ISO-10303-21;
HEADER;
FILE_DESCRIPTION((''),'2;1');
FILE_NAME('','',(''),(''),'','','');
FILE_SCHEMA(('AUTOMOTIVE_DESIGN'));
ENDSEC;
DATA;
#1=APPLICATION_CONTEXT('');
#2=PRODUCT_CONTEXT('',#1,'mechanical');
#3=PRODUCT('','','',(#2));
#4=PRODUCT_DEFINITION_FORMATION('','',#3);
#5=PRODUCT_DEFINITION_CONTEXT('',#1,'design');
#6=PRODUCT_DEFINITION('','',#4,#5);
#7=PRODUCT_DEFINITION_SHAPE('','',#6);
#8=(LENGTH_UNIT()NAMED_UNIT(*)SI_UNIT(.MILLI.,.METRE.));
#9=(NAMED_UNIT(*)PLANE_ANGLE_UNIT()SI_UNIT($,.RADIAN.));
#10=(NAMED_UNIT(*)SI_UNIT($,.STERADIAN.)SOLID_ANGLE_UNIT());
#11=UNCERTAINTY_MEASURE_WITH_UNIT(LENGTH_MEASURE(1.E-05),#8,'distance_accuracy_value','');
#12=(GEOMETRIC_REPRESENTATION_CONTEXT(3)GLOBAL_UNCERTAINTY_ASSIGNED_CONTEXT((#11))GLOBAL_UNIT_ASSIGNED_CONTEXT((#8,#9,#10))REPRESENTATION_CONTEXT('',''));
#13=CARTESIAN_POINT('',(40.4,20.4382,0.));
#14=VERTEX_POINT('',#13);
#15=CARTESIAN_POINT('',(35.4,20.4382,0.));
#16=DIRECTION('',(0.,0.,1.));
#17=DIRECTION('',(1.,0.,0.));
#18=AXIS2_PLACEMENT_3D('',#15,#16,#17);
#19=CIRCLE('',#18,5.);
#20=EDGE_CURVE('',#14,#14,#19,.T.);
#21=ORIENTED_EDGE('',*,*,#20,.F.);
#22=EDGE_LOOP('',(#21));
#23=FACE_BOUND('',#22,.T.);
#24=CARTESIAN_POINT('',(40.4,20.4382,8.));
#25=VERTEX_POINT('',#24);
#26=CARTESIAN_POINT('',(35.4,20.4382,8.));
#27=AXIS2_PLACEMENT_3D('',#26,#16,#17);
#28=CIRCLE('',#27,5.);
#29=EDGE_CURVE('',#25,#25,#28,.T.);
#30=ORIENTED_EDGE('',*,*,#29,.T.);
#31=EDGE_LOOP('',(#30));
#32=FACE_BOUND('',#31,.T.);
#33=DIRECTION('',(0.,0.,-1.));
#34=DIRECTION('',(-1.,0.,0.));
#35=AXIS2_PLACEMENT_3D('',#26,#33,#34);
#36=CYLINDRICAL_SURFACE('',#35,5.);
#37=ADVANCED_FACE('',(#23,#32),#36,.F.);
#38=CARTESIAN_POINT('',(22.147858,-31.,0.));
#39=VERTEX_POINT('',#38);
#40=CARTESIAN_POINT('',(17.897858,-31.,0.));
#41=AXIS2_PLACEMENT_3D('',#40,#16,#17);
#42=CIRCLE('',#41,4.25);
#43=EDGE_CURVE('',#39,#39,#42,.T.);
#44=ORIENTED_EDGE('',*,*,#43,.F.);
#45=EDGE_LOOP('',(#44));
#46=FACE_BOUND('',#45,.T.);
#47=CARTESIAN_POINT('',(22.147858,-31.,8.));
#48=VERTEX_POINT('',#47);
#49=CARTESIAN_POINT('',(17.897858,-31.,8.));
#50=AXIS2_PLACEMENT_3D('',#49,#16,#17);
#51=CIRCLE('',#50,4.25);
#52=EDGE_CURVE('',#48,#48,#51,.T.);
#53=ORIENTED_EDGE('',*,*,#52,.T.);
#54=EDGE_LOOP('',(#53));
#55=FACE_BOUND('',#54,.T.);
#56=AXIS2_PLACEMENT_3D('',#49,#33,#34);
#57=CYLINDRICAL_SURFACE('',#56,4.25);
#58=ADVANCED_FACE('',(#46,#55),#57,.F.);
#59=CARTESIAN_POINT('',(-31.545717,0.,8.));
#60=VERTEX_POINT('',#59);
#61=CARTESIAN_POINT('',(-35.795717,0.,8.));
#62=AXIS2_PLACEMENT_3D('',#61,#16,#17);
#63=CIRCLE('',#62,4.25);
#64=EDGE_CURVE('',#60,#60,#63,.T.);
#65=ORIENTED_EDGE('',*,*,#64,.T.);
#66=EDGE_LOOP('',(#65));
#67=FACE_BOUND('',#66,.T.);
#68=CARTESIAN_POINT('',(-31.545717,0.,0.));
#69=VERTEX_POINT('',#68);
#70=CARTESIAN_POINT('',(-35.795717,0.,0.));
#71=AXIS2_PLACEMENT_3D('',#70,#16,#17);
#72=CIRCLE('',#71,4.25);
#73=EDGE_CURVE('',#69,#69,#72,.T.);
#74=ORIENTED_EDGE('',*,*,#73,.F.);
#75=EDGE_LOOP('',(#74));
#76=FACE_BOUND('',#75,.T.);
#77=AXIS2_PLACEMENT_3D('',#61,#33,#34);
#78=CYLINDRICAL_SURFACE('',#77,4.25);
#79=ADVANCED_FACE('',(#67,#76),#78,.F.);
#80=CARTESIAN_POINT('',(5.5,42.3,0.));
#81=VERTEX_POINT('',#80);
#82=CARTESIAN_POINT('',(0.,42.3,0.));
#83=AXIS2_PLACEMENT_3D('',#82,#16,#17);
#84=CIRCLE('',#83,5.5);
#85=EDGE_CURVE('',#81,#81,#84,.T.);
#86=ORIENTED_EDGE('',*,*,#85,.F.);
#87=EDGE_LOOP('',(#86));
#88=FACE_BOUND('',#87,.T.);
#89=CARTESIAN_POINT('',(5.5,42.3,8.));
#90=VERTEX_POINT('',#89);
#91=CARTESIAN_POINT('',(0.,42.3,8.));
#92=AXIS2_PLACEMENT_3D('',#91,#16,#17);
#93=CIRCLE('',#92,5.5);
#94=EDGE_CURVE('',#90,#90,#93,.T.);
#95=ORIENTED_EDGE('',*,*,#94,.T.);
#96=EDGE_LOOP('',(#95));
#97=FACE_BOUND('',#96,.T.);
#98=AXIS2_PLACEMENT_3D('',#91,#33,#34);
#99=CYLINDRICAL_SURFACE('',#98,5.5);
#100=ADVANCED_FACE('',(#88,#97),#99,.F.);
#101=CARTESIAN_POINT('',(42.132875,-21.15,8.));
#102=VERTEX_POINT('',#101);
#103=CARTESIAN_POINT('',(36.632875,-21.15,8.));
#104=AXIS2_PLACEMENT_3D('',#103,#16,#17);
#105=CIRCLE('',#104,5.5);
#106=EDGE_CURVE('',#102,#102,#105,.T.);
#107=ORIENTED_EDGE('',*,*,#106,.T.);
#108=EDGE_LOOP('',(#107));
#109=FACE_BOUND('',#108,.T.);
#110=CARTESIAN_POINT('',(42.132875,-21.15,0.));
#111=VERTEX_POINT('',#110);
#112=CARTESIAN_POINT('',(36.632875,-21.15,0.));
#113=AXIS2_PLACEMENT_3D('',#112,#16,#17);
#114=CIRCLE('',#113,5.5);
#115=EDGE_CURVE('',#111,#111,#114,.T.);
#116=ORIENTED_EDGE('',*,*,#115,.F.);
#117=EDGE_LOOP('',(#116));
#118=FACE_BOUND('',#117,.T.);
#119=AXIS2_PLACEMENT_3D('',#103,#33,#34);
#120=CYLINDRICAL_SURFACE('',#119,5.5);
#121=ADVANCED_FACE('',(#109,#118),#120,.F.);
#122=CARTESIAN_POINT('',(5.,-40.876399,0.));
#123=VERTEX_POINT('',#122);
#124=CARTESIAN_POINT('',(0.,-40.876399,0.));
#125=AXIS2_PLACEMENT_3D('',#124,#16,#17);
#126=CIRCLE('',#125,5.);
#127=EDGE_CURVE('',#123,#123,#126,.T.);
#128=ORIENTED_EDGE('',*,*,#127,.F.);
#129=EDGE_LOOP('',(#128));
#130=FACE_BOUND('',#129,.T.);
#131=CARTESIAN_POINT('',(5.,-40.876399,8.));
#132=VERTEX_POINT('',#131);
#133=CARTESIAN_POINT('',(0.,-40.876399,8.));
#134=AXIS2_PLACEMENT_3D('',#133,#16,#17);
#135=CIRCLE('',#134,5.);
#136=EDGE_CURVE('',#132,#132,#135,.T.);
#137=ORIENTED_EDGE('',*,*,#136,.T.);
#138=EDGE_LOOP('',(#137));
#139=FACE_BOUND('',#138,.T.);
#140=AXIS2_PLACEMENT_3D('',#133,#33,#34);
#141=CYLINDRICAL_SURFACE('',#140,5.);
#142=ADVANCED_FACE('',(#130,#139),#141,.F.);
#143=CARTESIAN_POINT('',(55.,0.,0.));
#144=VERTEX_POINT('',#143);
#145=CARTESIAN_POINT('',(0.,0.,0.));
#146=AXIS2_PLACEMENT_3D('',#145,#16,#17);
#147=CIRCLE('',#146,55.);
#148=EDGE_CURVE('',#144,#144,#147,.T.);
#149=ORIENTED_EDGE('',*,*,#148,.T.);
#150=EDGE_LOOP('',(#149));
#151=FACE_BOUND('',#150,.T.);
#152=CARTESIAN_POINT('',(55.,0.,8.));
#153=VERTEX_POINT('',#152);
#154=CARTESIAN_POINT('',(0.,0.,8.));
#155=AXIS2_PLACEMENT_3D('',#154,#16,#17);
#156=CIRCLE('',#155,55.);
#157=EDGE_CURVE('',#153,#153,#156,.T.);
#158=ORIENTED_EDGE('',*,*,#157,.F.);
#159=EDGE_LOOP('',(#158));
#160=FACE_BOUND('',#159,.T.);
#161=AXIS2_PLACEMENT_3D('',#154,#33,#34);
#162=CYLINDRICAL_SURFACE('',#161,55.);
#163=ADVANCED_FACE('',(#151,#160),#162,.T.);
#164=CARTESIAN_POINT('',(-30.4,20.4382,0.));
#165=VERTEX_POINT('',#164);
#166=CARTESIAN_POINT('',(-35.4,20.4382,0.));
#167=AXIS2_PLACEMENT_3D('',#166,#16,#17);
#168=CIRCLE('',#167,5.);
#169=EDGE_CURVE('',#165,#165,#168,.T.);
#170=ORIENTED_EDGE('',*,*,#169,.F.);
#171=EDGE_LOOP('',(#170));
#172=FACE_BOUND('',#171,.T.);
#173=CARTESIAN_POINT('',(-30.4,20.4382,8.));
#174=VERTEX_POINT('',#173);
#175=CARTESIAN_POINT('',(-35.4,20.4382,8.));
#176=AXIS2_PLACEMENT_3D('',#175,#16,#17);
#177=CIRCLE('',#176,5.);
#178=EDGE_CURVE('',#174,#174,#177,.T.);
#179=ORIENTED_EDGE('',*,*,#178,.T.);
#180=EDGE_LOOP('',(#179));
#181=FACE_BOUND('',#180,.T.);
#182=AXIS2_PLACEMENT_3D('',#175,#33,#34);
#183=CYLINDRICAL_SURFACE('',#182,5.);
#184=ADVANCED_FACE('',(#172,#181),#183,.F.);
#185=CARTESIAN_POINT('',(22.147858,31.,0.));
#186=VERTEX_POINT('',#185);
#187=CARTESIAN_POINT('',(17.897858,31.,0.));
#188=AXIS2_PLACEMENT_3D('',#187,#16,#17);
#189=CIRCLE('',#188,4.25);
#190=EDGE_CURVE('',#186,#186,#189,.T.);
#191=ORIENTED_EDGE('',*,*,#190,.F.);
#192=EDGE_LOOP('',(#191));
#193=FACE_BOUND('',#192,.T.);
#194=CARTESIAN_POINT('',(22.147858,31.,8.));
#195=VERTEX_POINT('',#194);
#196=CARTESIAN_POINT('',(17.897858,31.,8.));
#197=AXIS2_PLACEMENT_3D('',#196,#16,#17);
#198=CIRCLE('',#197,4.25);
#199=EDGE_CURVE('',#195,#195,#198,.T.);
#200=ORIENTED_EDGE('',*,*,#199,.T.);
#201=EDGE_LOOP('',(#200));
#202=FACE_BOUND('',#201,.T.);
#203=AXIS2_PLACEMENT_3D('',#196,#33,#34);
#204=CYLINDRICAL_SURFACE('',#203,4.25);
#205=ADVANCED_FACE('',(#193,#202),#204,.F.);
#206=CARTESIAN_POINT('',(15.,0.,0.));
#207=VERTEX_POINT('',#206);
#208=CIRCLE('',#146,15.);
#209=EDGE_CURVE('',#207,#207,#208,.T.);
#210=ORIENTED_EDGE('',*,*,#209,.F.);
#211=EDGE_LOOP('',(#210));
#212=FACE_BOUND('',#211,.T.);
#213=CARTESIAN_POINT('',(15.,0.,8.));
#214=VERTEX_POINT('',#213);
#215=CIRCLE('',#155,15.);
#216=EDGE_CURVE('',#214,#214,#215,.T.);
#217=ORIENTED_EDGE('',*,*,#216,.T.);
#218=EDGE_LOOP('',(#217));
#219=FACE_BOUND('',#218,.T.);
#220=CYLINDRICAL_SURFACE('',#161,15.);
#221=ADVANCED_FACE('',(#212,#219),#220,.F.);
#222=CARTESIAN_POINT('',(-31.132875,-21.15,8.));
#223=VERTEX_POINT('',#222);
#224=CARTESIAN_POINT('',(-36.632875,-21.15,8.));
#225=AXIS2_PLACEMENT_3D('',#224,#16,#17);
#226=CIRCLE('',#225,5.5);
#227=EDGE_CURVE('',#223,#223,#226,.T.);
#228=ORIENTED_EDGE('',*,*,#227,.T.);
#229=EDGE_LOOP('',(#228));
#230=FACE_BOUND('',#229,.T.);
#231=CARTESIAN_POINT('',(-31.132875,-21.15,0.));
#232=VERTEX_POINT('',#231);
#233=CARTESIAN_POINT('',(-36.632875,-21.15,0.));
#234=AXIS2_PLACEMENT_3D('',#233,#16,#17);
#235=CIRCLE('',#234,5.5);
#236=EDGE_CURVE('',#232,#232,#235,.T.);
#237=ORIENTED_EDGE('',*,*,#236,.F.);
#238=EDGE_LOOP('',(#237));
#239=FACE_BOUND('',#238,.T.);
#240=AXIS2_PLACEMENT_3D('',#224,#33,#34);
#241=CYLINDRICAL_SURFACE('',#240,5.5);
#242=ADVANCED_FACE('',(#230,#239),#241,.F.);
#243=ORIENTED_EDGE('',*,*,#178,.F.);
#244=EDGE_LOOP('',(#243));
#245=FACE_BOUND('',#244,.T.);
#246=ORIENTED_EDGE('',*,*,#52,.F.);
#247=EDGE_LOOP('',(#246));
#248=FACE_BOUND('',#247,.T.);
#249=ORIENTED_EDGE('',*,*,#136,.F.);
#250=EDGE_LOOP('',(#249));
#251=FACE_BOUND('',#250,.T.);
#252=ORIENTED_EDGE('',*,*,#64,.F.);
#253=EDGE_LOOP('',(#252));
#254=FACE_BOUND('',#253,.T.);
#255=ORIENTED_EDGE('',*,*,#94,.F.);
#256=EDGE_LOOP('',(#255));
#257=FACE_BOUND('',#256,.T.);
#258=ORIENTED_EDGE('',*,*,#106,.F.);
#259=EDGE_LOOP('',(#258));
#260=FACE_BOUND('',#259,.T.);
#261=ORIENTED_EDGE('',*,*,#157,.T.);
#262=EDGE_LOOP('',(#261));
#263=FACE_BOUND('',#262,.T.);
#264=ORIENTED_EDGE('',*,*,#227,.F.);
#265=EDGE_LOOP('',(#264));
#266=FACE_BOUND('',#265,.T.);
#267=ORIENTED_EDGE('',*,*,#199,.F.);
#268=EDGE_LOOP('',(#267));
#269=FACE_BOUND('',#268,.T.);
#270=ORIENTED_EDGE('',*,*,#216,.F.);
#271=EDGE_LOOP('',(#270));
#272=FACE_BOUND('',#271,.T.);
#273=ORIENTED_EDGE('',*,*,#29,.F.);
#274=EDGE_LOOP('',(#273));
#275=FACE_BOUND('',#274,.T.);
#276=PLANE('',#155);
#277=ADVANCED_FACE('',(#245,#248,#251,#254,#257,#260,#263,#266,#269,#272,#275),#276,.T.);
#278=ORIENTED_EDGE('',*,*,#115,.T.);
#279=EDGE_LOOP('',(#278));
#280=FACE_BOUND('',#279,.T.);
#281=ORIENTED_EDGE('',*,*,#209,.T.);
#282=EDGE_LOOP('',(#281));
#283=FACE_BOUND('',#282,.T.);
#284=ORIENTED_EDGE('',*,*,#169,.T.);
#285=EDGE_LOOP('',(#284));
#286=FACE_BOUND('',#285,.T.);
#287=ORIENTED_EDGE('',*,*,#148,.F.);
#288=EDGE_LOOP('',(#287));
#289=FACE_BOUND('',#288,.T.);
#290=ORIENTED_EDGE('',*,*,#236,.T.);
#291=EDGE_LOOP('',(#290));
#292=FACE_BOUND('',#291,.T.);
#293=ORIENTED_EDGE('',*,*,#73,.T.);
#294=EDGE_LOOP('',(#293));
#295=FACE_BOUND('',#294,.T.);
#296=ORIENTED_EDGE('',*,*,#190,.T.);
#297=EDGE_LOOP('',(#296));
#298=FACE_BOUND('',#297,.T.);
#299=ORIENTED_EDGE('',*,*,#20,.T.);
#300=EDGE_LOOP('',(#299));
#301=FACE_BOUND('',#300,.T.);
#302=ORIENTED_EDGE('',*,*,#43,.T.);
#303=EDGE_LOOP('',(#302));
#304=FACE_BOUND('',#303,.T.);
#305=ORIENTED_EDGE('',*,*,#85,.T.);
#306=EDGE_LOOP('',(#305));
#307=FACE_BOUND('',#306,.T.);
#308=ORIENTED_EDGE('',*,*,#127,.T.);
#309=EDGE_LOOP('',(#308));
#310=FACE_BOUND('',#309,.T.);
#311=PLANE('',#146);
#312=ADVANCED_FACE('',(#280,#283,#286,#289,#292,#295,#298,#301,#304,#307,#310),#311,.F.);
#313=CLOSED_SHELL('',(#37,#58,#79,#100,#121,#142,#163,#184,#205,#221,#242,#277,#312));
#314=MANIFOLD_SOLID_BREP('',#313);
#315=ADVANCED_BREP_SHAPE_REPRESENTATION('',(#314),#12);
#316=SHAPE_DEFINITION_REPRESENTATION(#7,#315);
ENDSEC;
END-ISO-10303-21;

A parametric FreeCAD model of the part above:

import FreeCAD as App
import Part
import Sketcher
from FreeCAD import Vector
Q = App.Units.Quantity

doc = App.newDocument("Part")
body = doc.addObject("PartDesign::Body", "Body")

sketch1 = body.newObject("Sketcher::SketchObject", "Sketch")
sketch1.AttachmentSupport = (doc.getObject("XY_Plane"), [""])
sketch1.MapMode = "FlatFace"
sketch1.addGeometry([
    Part.Circle(Vector(0, 0, 0), Vector(0, 0, 1), 55),
    Part.Circle(Vector(-36.6, -21.1, 0), Vector(0, 0, 1), 5.5),
    Part.Circle(Vector(-35.8, 0, 0), Vector(0, 0, 1), 4.2),
    Part.Circle(Vector(0, -40.9, 0), Vector(0, 0, 1), 5),
    Part.Circle(Vector(17.9, -31, 0), Vector(0, 0, 1), 4.2),
    Part.Circle(Vector(0, 0, 0), Vector(0, 0, 1), 15),
    Part.Circle(Vector(36.6, -21.1, 0), Vector(0, 0, 1), 5.5),
    Part.Circle(Vector(-35.4, 20.4, 0), Vector(0, 0, 1), 5),
    Part.Circle(Vector(35.4, 20.4, 0), Vector(0, 0, 1), 5),
    Part.Circle(Vector(17.9, 31, 0), Vector(0, 0, 1), 4.2),
    Part.Circle(Vector(0, 42.3, 0), Vector(0, 0, 1), 5.5),
], False)
sketch1.addConstraint([
    Sketcher.Constraint("Coincident", 0, 3, -1, 1),
    Sketcher.Constraint("Coincident", 5, 3, -1, 1),
    Sketcher.Constraint("Equal", 2, 4),
    Sketcher.Constraint("Equal", 1, 6),
    Sketcher.Constraint("Equal", 3, 7),
    Sketcher.Constraint("Equal", 7, 8),
    Sketcher.Constraint("Equal", 4, 9),
    Sketcher.Constraint("Equal", 6, 10),
    Sketcher.Constraint("Symmetric", 1, 3, 6, 3, -2),
    Sketcher.Constraint("Symmetric", 7, 3, 8, 3, -2),
    Sketcher.Constraint("Symmetric", 4, 3, 9, 3, -1),
    Sketcher.Constraint("PointOnObject", 2, 3, -1),
    Sketcher.Constraint("PointOnObject", 3, 3, -2),
    Sketcher.Constraint("PointOnObject", 10, 3, -2),
    Sketcher.Constraint("Diameter", 0, Q("110 mm")),
    Sketcher.Constraint("Diameter", 1, Q("11 mm")),
    Sketcher.Constraint("Diameter", 3, Q("10 mm")),
    Sketcher.Constraint("Diameter", 5, Q("30 mm")),
    Sketcher.Constraint("Diameter", 2, Q("8.5 mm")),
    Sketcher.Constraint("DistanceY", 4, 3, -1, 1, Q("31 mm")),
    Sketcher.Constraint("DistanceX", 7, 3, -1, 1, Q("35.4 mm")),
    Sketcher.Constraint("DistanceY", -1, 1, 10, 3, Q("42.3 mm")),
    Sketcher.Constraint("DistanceY", 1, 3, -1, 1, Q("21.15 mm")),
    Sketcher.Constraint("DistanceY", 3, 3, -1, 1, Q("40.876399 mm")),
    Sketcher.Constraint("DistanceY", -1, 1, 7, 3, Q("20.4382 mm")),
    Sketcher.Constraint("DistanceX", -1, 1, 4, 3, Q("17.897858 mm")),
    Sketcher.Constraint("DistanceX", 1, 3, 6, 3, Q("73.265749 mm")),
    Sketcher.Constraint("DistanceX", 2, 3, -1, 1, Q("35.795717 mm")),
])
pad1 = body.newObject("PartDesign::Pad", "Pad")
pad1.Profile = sketch1
pad1.Length = 8

doc.recompute()
